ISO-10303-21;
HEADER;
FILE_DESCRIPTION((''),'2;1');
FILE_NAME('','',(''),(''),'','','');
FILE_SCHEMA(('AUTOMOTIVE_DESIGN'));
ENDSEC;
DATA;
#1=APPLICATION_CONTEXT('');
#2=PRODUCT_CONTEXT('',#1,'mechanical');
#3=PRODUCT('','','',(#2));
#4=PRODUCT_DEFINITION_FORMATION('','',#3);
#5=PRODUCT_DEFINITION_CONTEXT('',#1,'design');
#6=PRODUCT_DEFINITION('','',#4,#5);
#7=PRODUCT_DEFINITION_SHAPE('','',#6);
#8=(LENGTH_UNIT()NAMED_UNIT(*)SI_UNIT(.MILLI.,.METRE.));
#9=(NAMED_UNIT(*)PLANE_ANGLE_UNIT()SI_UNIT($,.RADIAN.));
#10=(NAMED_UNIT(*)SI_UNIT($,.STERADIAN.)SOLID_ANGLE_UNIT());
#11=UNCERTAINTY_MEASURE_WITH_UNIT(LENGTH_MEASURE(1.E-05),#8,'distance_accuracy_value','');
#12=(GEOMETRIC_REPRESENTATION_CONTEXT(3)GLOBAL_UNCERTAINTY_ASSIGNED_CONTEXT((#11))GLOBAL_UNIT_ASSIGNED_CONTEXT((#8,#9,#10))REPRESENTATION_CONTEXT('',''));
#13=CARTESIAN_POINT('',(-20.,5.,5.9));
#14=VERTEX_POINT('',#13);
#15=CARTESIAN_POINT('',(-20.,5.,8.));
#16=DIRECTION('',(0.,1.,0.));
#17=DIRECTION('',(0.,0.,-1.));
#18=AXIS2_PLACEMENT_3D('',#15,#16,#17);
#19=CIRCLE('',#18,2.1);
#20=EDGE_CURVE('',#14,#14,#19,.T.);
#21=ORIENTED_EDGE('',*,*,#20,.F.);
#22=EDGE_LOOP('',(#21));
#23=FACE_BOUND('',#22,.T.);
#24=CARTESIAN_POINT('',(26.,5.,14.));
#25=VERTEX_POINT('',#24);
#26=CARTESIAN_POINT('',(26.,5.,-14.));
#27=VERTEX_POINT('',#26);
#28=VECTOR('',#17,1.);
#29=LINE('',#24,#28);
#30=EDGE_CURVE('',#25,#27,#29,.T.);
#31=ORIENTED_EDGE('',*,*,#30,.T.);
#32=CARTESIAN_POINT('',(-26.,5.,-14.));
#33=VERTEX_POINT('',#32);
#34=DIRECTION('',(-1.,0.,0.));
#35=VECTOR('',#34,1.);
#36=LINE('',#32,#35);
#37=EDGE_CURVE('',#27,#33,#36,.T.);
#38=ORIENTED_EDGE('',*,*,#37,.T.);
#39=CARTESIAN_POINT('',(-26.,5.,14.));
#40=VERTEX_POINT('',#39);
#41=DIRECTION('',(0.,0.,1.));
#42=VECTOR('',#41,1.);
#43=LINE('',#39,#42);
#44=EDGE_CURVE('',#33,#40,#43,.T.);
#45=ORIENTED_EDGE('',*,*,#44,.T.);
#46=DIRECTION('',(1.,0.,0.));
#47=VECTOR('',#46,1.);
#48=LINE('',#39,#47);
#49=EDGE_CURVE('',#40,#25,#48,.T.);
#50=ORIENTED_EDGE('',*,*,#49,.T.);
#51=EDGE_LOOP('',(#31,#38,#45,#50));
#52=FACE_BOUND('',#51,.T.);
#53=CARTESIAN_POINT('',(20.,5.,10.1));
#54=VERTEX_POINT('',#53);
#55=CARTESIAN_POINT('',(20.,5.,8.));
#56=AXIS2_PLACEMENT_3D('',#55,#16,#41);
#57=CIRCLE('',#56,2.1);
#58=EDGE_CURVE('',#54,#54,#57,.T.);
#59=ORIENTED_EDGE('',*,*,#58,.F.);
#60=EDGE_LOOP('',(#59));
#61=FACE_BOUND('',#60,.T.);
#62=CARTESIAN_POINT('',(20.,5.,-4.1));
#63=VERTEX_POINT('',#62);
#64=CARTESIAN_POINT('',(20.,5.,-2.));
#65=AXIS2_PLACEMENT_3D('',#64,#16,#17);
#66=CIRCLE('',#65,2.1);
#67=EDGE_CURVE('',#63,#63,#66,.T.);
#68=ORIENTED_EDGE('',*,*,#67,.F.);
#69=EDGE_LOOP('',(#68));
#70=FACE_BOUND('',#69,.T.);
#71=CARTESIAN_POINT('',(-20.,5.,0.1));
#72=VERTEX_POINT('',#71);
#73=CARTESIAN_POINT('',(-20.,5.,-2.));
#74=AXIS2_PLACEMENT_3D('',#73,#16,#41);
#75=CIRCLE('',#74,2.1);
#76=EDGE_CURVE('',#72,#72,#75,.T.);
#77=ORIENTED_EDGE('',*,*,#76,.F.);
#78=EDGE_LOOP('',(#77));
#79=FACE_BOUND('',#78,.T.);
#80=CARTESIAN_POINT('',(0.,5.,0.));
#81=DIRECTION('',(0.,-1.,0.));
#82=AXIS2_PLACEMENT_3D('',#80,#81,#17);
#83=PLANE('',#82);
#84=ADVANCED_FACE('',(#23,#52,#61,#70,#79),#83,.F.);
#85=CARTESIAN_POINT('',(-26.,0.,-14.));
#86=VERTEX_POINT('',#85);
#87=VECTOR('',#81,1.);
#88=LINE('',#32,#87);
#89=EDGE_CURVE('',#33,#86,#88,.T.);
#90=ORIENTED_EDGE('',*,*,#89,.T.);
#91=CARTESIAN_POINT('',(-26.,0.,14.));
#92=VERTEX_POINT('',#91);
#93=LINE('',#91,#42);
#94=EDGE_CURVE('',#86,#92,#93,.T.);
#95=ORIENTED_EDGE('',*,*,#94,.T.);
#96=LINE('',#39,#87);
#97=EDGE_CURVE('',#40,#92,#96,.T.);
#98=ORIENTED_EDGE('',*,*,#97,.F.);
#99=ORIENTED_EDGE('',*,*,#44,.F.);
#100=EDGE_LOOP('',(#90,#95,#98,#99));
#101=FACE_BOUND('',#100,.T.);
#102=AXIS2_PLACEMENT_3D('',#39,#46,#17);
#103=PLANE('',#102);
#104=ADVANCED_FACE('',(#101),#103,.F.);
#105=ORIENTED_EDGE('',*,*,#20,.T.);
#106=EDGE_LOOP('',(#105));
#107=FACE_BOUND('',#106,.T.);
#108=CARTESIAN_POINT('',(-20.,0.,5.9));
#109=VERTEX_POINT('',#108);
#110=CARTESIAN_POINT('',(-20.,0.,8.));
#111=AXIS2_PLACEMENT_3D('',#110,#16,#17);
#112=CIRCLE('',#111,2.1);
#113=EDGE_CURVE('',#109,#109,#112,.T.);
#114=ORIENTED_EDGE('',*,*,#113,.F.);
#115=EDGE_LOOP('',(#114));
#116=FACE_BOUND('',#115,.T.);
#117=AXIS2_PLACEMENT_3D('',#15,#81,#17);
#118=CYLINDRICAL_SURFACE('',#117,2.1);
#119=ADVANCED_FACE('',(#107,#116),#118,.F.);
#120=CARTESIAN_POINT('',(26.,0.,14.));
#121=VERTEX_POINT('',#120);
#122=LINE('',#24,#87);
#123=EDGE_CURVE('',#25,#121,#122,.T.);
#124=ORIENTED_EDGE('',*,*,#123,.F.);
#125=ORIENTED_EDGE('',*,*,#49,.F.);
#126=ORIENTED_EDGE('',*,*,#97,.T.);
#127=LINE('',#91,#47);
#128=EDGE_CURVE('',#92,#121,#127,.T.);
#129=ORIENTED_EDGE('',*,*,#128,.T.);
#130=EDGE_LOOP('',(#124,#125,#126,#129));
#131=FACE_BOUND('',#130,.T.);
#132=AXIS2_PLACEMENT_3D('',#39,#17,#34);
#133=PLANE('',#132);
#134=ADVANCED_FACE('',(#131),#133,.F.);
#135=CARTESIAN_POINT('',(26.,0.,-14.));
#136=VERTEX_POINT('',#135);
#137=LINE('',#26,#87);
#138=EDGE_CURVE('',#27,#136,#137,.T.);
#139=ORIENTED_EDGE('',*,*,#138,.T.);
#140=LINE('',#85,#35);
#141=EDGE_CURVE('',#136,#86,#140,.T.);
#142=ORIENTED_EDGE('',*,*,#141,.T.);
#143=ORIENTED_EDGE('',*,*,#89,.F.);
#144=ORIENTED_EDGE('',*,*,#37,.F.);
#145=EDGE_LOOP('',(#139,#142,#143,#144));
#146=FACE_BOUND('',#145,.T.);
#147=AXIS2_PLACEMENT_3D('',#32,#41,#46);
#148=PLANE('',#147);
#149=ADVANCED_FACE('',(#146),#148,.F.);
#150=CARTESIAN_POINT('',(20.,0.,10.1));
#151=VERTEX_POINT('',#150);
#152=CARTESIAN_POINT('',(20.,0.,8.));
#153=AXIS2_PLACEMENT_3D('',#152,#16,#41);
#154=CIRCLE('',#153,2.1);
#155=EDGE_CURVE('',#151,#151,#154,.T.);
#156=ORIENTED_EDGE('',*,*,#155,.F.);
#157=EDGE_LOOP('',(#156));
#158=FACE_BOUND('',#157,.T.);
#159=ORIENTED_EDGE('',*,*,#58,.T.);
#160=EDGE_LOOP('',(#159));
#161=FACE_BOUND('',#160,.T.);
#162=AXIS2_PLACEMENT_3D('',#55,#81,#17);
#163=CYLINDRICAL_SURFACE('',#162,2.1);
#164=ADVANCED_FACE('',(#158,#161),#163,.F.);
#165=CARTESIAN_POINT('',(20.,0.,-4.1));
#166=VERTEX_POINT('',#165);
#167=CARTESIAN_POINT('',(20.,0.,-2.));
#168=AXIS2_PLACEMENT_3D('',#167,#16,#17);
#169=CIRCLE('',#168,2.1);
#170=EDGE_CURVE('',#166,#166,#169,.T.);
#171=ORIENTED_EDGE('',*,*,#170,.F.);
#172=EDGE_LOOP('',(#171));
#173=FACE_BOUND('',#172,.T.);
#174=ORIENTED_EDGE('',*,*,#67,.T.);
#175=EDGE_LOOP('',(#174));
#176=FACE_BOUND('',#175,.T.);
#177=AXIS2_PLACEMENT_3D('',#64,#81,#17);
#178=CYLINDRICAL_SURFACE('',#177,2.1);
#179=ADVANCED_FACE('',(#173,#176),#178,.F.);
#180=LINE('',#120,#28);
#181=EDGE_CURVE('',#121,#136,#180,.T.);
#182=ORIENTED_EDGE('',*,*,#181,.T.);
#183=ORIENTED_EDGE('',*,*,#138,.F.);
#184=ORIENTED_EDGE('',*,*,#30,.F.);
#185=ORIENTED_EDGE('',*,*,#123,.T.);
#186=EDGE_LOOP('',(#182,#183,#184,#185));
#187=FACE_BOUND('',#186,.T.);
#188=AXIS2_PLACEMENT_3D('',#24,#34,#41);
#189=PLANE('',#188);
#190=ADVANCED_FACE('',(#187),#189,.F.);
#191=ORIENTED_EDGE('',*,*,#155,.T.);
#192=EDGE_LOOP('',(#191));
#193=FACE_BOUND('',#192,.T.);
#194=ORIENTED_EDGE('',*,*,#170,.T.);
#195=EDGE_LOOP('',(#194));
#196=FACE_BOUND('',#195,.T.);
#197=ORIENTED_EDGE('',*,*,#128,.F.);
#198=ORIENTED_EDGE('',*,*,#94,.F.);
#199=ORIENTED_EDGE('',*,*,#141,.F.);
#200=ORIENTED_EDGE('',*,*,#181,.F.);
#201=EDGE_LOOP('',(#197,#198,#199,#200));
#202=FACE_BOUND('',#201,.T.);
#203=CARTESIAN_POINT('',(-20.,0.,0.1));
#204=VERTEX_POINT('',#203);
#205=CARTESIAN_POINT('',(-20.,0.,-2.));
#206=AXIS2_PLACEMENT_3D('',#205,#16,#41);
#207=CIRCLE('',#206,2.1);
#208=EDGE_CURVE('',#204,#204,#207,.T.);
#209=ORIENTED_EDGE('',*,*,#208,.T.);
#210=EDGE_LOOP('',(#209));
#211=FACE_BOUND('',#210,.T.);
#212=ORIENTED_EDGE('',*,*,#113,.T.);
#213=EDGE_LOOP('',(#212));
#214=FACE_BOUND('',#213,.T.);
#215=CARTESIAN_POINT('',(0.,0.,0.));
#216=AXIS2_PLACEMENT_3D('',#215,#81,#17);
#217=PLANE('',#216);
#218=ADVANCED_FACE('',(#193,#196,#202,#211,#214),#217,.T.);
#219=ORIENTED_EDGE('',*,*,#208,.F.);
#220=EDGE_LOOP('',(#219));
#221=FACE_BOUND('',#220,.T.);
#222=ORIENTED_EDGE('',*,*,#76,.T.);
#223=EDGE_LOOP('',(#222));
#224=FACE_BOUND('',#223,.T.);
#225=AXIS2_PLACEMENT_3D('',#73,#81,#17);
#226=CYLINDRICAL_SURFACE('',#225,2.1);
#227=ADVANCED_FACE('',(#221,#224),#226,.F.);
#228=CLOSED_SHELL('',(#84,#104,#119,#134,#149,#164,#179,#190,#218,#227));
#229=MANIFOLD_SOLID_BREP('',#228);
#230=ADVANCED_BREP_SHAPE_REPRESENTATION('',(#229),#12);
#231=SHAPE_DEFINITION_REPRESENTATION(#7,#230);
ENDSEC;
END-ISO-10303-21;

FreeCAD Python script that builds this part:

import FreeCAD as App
import Part
import Sketcher

V = App.Vector
Q = App.Units.Quantity

doc = App.newDocument("Part")
body = doc.addObject("PartDesign::Body", "Body")

# Sketch on XZ plane
sketch1 = body.newObject("Sketcher::SketchObject", "Sketch")
sketch1.AttachmentSupport = (doc.getObject("XZ_Plane"), [""])
sketch1.MapMode = "FlatFace"
sketch1.addGeometry([
    Part.LineSegment(V(-26, -14, 0), V(-26, 14, 0)),  # 0
    Part.LineSegment(V(-26, 14, 0), V(26, 14, 0)),  # 1
    Part.LineSegment(V(26, 14, 0), V(26, -14, 0)),  # 2
    Part.LineSegment(V(26, -14, 0), V(-26, -14, 0)),  # 3
    Part.Circle(V(-20, 8, 0), V(0, 0, 1), 2.1),  # 4
    Part.Circle(V(20, 8, 0), V(0, 0, 1), 2.1),  # 5
    Part.Circle(V(-20, -2, 0), V(0, 0, 1), 2.1),  # 6
    Part.Circle(V(20, -2, 0), V(0, 0, 1), 2.1),  # 7
], False)
sketch1.addConstraint([
    Sketcher.Constraint("Coincident", 0, 2, 1, 1),
    Sketcher.Constraint("Coincident", 1, 2, 2, 1),
    Sketcher.Constraint("Coincident", 2, 2, 3, 1),
    Sketcher.Constraint("Coincident", 3, 2, 0, 1),
    Sketcher.Constraint("Vertical", 0),
    Sketcher.Constraint("Horizontal", 1),
    Sketcher.Constraint("Vertical", 2),
    Sketcher.Constraint("Horizontal", 3),
    Sketcher.Constraint("Equal", 4, 5),
    Sketcher.Constraint("Equal", 5, 6),
    Sketcher.Constraint("Equal", 6, 7),
    Sketcher.Constraint("Symmetric", 0, 2, 2, 2, -1, 1),
    Sketcher.Constraint("Symmetric", 4, 3, 5, 3, -2),
    Sketcher.Constraint("Symmetric", 6, 3, 7, 3, -2),
    Sketcher.Constraint("Vertical", 4, 3, 6, 3),
    Sketcher.Constraint("Diameter", 4, Q("4.2 mm")),
    Sketcher.Constraint("DistanceX", 1, 1, 1, 2, Q("52 mm")),
    Sketcher.Constraint("DistanceY", 0, 1, 0, 2, Q("28 mm")),
    Sketcher.Constraint("DistanceX", 4, 3, -1, 1, Q("20 mm")),
    Sketcher.Constraint("DistanceY", -1, 1, 4, 3, Q("8 mm")),
    Sketcher.Constraint("DistanceY", 6, 3, -1, 1, Q("2 mm")),
])
pad1 = body.newObject("PartDesign::Pad", "Pad")
pad1.Profile = sketch1
pad1.Length = 5
pad1.Reversed = True

doc.recompute()
